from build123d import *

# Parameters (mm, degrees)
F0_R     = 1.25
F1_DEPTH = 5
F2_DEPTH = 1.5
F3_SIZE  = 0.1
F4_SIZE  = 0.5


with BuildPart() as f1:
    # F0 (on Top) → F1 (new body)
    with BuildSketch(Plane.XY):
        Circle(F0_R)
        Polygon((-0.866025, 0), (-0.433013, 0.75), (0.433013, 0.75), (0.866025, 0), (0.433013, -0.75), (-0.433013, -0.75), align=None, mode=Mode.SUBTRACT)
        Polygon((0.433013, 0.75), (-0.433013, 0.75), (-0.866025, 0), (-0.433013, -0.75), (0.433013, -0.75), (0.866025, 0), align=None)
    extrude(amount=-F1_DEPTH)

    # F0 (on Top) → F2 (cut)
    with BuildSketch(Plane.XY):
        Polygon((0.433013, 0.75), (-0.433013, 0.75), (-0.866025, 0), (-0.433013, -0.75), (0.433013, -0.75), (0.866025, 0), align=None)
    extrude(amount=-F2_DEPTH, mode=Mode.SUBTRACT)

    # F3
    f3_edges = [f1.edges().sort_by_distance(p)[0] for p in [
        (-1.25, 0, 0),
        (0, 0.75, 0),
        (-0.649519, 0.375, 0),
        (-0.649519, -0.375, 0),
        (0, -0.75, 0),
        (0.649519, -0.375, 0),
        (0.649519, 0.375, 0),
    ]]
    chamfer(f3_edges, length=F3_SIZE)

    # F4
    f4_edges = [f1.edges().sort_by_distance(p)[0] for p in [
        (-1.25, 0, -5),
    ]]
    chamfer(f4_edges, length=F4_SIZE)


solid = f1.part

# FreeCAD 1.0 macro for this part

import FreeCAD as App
import Part
import Sketcher
from FreeCAD import Vector
Q = App.Units.Quantity


def edges_at(feature, points):
    """Names of the edges that pass closest to the given points."""
    edges = feature.Shape.Edges
    near = lambda p: min(range(len(edges)), key=lambda i: edges[i].distToShape(Part.Vertex(*p))[0])
    return sorted({f"Edge{near(p) + 1}" for p in points})

doc = App.newDocument("Part")
params = doc.addObject("Spreadsheet::Sheet", "Params")
for row, (alias, value) in enumerate([
    ("sketch1_diameter", "2.5 mm"),
    ("pad1_length", "5 mm"),
    ("pocket1_length", "1.5 mm"),
    ("chamfer_size", "0.1 mm"),
    ("chamfer2_size", "0.5 mm"),
], start=1):
    params.set(f"A{row}", alias)
    params.set(f"B{row}", "=" + value)
    params.setAlias(f"B{row}", alias)

body = doc.addObject("PartDesign::Body", "Body")

sketch1 = body.newObject("Sketcher::SketchObject", "Sketch")
sketch1.AttachmentSupport = (doc.getObject("XY_Plane"), [""])
sketch1.MapMode = "FlatFace"
sketch1.addGeometry(Part.Circle(Vector(0, 0, 0), Vector(0, 0, 1), 1.2), False)
sketch1.addConstraint([
    Sketcher.Constraint("Coincident", 0, 3, -1, 1),
    Sketcher.Constraint("Diameter", 0, Q("2.5 mm")),
])
sketch1.setExpression("Constraints[1]", "Params.sketch1_diameter")
pad1 = body.newObject("PartDesign::Pad", "Pad")
pad1.Profile = sketch1
pad1.setExpression("Length", "Params.pad1_length")
pad1.Reversed = True

sketch2 = body.newObject("Sketcher::SketchObject", "Sketch001")
sketch2.AttachmentSupport = (doc.getObject("XY_Plane"), [""])
sketch2.MapMode = "FlatFace"
sketch2.addGeometry([
    Part.LineSegment(Vector(0.4, 0.8, 0), Vector(-0.4, 0.8, 0)),
    Part.LineSegment(Vector(-0.4, 0.8, 0), Vector(-0.9, 0, 0)),
    Part.LineSegment(Vector(-0.9, 0, 0), Vector(-0.4, -0.8, 0)),
    Part.LineSegment(Vector(-0.4, -0.8, 0), Vector(0.4, -0.8, 0)),
    Part.LineSegment(Vector(0.4, -0.8, 0), Vector(0.9, 0, 0)),
    Part.LineSegment(Vector(0.9, 0, 0), Vector(0.4, 0.8, 0)),
], False)
sketch2.addConstraint([
    Sketcher.Constraint("Coincident", 0, 2, 1, 1),
    Sketcher.Constraint("Coincident", 1, 2, 2, 1),
    Sketcher.Constraint("Coincident", 2, 2, 3, 1),
    Sketcher.Constraint("Coincident", 3, 2, 4, 1),
    Sketcher.Constraint("Coincident", 4, 2, 5, 1),
    Sketcher.Constraint("Coincident", 5, 2, 0, 1),
    Sketcher.Constraint("Horizontal", 0),
    Sketcher.Constraint("Horizontal", 3),
    Sketcher.Constraint("Symmetric", 0, 2, 3, 2, -1, 1),
    Sketcher.Constraint("Symmetric", 1, 2, 4, 2, -1, 1),
    Sketcher.Constraint("PointOnObject", 1, 2, -1),
    Sketcher.Constraint("Parallel", 2, 5),
    Sketcher.Constraint("Vertical", 0, 2, 2, 2),
    Sketcher.Constraint("DistanceY", 2, 2, 0, 2, Q("1.5 mm")),
    Sketcher.Constraint("DistanceX", 0, 2, 0, 1, Q("0.866026 mm")),
    Sketcher.Constraint("DistanceX", 1, 2, 4, 2, Q("1.73205 mm")),
])
pocket1 = body.newObject("PartDesign::Pocket", "Pocket")
pocket1.Profile = sketch2
pocket1.setExpression("Length", "Params.pocket1_length")
doc.recompute()

chamfer = body.newObject("PartDesign::Chamfer", "Chamfer")
chamfer.Base = (pocket1, edges_at(pocket1, [
    (-1.25, 0, 0),
    (0, 0.75, 0),
    (-0.65, 0.375, 0),
    (-0.65, -0.375, 0),
    (0, -0.75, 0),
    (0.65, -0.375, 0),
    (0.65, 0.375, 0),
]))
chamfer.setExpression("Size", "Params.chamfer_size")
doc.recompute()

chamfer2 = body.newObject("PartDesign::Chamfer", "Chamfer001")
chamfer2.Base = (chamfer, edges_at(chamfer, [(-1.25, 0, -5)]))
chamfer2.setExpression("Size", "Params.chamfer2_size")

doc.recompute()
